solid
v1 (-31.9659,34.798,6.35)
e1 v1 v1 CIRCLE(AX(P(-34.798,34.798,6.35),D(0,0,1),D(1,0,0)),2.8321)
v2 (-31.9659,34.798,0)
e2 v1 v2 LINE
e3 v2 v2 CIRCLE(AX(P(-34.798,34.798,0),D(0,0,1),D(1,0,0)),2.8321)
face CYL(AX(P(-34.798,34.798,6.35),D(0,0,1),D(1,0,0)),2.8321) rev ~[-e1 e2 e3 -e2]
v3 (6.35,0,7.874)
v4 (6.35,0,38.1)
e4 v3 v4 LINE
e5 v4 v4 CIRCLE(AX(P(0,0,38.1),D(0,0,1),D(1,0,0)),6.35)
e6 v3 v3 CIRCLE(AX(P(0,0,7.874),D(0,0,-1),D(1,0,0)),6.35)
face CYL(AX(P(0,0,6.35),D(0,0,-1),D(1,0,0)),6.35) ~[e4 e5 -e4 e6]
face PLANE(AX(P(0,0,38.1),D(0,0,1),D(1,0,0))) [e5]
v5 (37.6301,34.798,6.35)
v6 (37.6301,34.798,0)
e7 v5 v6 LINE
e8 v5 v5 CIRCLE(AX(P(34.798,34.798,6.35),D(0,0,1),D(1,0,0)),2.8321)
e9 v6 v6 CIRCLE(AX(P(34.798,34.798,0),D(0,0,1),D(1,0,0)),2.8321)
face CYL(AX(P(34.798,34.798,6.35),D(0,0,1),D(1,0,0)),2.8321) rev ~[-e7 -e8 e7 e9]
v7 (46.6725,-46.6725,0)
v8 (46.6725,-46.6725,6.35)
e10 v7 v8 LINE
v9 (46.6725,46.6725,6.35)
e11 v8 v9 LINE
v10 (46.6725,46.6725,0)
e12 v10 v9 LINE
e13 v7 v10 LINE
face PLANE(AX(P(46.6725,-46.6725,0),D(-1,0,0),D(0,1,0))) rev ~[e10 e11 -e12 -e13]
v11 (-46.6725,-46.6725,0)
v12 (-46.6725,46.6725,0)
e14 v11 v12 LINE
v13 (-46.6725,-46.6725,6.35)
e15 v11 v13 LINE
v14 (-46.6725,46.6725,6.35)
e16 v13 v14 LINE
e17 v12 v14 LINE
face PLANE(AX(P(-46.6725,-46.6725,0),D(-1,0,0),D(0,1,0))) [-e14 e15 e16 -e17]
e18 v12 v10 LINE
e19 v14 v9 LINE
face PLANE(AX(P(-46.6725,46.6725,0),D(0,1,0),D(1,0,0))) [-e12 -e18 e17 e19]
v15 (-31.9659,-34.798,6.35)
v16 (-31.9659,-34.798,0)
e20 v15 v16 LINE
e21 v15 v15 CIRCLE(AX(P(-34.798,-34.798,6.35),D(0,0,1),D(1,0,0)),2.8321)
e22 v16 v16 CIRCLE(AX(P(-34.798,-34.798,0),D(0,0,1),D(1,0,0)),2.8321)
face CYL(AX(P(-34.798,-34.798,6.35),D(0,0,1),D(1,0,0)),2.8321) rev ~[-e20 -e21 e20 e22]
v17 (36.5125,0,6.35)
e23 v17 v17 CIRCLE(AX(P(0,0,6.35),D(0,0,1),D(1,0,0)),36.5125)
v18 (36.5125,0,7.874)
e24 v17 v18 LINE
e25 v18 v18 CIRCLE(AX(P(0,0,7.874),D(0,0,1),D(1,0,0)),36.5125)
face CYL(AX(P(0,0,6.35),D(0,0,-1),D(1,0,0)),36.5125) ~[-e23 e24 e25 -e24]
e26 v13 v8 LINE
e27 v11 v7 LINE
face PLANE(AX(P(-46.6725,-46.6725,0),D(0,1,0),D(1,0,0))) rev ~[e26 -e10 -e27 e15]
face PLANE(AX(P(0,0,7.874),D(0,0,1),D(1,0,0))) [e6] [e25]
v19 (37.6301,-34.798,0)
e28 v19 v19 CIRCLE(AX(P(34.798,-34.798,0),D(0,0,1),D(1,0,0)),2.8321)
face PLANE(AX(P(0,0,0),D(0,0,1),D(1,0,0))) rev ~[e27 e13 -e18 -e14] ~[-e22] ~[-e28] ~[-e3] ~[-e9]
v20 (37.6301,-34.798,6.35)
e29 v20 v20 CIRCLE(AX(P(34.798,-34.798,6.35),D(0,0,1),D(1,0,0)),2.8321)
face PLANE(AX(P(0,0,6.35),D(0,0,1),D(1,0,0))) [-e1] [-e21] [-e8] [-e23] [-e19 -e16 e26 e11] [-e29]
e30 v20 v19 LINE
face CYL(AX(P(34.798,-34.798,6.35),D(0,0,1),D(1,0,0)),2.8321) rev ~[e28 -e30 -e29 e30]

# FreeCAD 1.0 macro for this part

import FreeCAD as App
import Part
import Sketcher
Q = App.Units.Quantity


def add_polygon(sketch, points):
    """Adds a closed chain of lines whose ends are joined by coincident constraints."""
    first, n = sketch.GeometryCount, len(points)
    for a, b in zip(points, points[1:] + points[:1]):
        sketch.addGeometry(Part.LineSegment(App.Vector(*a, 0), App.Vector(*b, 0)), False)
    for i in range(n):
        sketch.addConstraint(Sketcher.Constraint("Coincident", first + i, 2, first + (i + 1) % n, 1))

doc = App.newDocument("Part")
params = doc.addObject("Spreadsheet::Sheet", "Params")
for row, (alias, value) in enumerate([
    ("sketch1_width", "3.675 in"),
    ("pad1_length", "0.25 in"),
    ("sketch2_diameter", "2.875 in"),
    ("pad2_length", "0.06 in"),
    ("sketch3_diameter", "0.5 in"),
    ("pad3_length", "1.25 in"),
    ("sketch4_diameter", "0.223 in"),
], start=1):
    params.set(f"A{row}", alias)
    params.set(f"B{row}", "=" + value)
    params.setAlias(f"B{row}", alias)

body = doc.addObject("PartDesign::Body", "Body")

sketch1 = doc.addObject("Sketcher::SketchObject", "Sketch")
body.addObject(sketch1)
sketch1.AttachmentSupport = (doc.XY_Plane, [""])
sketch1.MapMode = "FlatFace"
add_polygon(sketch1, [(-46.6725, 46.6725), (-46.6725, -46.6725), (46.6725, -46.6725), (46.6725, 46.6725)])
sketch1.addConstraint([
    Sketcher.Constraint("Vertical", 0),
    Sketcher.Constraint("Horizontal", 1),
    Sketcher.Constraint("Vertical", 2),
    Sketcher.Constraint("Horizontal", 3),
    Sketcher.Constraint("Symmetric", 0, 2, 2, 2, -1, 1),
    Sketcher.Constraint("Equal", 3, 0),
    Sketcher.Constraint("DistanceX", 1, 1, 1, 2, Q("3.675 in")),
])
sketch1.setExpression("Constraints[10]", "Params.sketch1_width")
pad1 = doc.addObject("PartDesign::Pad", "Pad")
body.addObject(pad1)
pad1.Profile = sketch1
pad1.setExpression("Length", "Params.pad1_length")

sketch2 = doc.addObject("Sketcher::SketchObject", "Sketch001")
body.addObject(sketch2)
sketch2.AttachmentSupport = (doc.XY_Plane, [""])
sketch2.MapMode = "FlatFace"
sketch2.AttachmentOffset = App.Placement(App.Vector(0, 0, 0.25 * 25.4), App.Rotation())
sketch2.addGeometry(Part.Circle(App.Vector(0, 0, 0), App.Vector(0, 0, 1), 36.5125), False)
sketch2.addConstraint([
    Sketcher.Constraint("Coincident", 0, 3, -1, 1),
    Sketcher.Constraint("Diameter", 0, Q("2.875 in")),
])
sketch2.setExpression("Constraints[1]", "Params.sketch2_diameter")
pad2 = doc.addObject("PartDesign::Pad", "Pad001")
body.addObject(pad2)
pad2.Profile = sketch2
pad2.setExpression("Length", "Params.pad2_length")

sketch3 = doc.addObject("Sketcher::SketchObject", "Sketch002")
body.addObject(sketch3)
sketch3.AttachmentSupport = (doc.XY_Plane, [""])
sketch3.MapMode = "FlatFace"
sketch3.AttachmentOffset = App.Placement(App.Vector(0, 0, 0.25 * 25.4), App.Rotation())
sketch3.addGeometry(Part.Circle(App.Vector(0, 0, 0), App.Vector(0, 0, 1), 6.35), False)
sketch3.addConstraint([
    Sketcher.Constraint("Coincident", 0, 3, -1, 1),
    Sketcher.Constraint("Diameter", 0, Q("0.5 in")),
])
sketch3.setExpression("Constraints[1]", "Params.sketch3_diameter")
pad3 = doc.addObject("PartDesign::Pad", "Pad002")
body.addObject(pad3)
pad3.Profile = sketch3
pad3.setExpression("Length", "Params.pad3_length")

sketch4 = doc.addObject("Sketcher::SketchObject", "Sketch003")
body.addObject(sketch4)
sketch4.AttachmentSupport = (doc.XY_Plane, [""])
sketch4.MapMode = "FlatFace"
sketch4.AttachmentOffset = App.Placement(App.Vector(0, 0, 0.25 * 25.4), App.Rotation())
sketch4.addGeometry([
    Part.Circle(App.Vector(-34.798, 34.798, 0), App.Vector(0, 0, 1), 2.8321),
    Part.Circle(App.Vector(34.798, 34.798, 0), App.Vector(0, 0, 1), 2.8321),
    Part.Circle(App.Vector(34.798, -34.798, 0), App.Vector(0, 0, 1), 2.8321),
    Part.Circle(App.Vector(-34.798, -34.798, 0), App.Vector(0, 0, 1), 2.8321),
], False)
sketch4.addConstraint([
    Sketcher.Constraint("Equal", 0, 1),
    Sketcher.Constraint("Equal", 1, 2),
    Sketcher.Constraint("Equal", 2, 3),
    Sketcher.Constraint("Symmetric", 0, 3, 2, 3, -1, 1),
    Sketcher.Constraint("Symmetric", 1, 3, 3, 3, -1, 1),
    Sketcher.Constraint("Symmetric", 0, 3, 1, 3, -2),
    Sketcher.Constraint("Diameter", 0, Q("0.223 in")),
    Sketcher.Constraint("DistanceX", 0, 3, -1, 1, Q("1.37 in")),
    Sketcher.Constraint("DistanceY", -1, 1, 0, 3, Q("1.37 in")),
])
sketch4.setExpression("Constraints[6]", "Params.sketch4_diameter")
pocket1 = doc.addObject("PartDesign::Pocket", "Pocket")
body.addObject(pocket1)
pocket1.Profile = sketch4
pocket1.Type = "ThroughAll"

doc.recompute()
